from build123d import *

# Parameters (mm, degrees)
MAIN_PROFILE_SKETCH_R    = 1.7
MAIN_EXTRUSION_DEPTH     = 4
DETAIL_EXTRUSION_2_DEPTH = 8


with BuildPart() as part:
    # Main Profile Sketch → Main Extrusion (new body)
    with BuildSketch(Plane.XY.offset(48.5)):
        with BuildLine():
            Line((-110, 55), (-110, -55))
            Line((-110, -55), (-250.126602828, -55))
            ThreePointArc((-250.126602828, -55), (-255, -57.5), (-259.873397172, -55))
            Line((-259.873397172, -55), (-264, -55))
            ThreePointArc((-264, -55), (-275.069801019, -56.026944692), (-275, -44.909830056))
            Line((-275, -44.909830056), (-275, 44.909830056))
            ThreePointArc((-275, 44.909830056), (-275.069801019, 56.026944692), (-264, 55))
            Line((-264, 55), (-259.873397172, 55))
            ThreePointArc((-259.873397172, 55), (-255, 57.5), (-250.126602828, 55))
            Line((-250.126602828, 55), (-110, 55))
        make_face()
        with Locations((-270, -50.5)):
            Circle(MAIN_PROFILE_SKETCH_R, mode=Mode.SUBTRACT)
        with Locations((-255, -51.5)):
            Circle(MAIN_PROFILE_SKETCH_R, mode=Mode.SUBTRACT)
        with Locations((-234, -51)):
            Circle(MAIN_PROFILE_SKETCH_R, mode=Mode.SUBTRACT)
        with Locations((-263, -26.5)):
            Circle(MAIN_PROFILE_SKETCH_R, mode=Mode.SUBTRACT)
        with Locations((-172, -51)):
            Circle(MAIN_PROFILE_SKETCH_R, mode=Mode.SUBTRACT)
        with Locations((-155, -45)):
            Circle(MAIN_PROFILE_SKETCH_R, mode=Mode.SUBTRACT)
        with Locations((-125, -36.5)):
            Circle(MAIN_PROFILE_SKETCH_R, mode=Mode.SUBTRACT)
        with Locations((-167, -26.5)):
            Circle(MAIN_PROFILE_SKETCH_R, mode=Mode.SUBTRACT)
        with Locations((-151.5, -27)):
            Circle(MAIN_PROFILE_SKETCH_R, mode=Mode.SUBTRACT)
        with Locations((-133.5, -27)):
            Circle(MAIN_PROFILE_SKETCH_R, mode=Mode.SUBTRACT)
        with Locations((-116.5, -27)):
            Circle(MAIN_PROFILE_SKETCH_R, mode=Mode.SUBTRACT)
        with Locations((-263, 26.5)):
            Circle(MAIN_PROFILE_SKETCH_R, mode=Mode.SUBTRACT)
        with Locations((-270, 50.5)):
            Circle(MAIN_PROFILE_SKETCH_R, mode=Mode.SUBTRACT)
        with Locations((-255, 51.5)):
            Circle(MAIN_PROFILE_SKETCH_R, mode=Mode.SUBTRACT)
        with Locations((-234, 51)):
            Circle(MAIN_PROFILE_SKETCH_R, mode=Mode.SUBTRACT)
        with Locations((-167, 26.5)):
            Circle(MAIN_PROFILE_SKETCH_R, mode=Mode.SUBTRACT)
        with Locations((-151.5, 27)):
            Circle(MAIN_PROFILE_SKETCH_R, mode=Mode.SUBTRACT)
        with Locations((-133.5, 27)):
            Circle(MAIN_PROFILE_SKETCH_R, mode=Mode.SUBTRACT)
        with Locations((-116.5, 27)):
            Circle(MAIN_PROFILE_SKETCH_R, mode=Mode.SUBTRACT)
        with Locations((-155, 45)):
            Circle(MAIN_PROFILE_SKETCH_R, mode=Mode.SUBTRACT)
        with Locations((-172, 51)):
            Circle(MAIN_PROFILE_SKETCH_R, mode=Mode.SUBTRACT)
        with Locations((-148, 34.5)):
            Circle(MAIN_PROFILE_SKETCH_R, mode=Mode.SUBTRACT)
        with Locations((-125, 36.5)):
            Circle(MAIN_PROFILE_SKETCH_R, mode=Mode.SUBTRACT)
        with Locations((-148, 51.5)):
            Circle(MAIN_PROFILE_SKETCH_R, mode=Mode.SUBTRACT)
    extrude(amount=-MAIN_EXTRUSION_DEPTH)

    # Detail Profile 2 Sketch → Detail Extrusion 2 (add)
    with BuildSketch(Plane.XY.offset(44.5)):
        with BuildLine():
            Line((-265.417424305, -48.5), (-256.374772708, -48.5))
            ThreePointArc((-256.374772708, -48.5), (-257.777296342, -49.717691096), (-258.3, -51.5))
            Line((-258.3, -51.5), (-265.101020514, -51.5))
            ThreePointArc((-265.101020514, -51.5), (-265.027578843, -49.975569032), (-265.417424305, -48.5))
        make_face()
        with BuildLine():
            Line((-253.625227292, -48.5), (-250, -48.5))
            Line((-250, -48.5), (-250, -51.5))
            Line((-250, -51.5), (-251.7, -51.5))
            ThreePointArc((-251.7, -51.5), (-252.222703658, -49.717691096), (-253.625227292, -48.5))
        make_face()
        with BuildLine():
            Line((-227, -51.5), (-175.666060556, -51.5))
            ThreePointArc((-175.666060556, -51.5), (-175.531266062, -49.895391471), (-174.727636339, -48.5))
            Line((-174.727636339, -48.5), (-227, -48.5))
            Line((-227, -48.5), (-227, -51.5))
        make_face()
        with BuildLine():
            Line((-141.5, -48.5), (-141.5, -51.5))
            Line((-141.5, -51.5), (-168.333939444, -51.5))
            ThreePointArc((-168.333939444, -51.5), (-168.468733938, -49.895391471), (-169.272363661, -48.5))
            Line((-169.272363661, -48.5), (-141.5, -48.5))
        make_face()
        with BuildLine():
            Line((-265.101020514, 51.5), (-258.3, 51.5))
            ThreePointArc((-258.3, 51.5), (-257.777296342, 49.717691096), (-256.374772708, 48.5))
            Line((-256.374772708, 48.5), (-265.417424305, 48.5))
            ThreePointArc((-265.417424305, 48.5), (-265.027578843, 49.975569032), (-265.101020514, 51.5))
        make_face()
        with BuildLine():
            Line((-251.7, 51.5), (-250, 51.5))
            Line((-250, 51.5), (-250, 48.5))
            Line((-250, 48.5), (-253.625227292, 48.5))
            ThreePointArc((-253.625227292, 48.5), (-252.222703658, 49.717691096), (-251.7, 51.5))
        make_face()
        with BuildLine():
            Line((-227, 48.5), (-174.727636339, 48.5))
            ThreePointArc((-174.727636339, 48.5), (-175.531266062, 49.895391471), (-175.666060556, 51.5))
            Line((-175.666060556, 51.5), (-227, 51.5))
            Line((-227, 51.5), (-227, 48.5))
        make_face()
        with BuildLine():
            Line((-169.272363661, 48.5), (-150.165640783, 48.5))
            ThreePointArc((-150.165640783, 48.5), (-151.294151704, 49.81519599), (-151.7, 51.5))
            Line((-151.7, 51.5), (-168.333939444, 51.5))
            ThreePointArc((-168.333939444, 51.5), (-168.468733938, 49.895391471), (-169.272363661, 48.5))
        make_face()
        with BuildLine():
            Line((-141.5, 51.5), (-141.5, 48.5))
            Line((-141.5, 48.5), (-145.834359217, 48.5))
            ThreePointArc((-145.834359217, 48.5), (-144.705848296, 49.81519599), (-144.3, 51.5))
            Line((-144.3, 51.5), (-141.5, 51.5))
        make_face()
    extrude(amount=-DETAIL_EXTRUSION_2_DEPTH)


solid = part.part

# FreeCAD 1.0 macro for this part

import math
import FreeCAD as App
import Part
import Sketcher

V = App.Vector

doc = App.newDocument("Part")
params = doc.addObject("Spreadsheet::Sheet", "Params")
for row, (alias, value) in enumerate([
    ("sketch1_radius", "6 mm"),
    ("sketch1_diameter", "3.4 mm"),
    ("sketch1_radius2", "7.5 mm"),
    ("sketch1_height", "110 mm"),
    ("pad1_length", "4 mm"),
    ("sketch2_radius", "5 mm"),
    ("sketch2_radius2", "3.3 mm"),
    ("sketch2_radius3", "3.7 mm"),
    ("sketch2_height", "3 mm"),
    ("sketch2_width", "1.7 mm"),
    ("pad2_length", "8 mm"),
], start=1):
    params.set(f"A{row}", alias)
    params.set(f"B{row}", "=" + value)
    params.setAlias(f"B{row}", alias)

body = doc.addObject("PartDesign::Body", "Body")

sketch1 = body.newObject("Sketcher::SketchObject", "Sketch")
sketch1.AttachmentSupport = (doc.getObject("XY_Plane"), [""])
sketch1.MapMode = "FlatFace"
sketch1.AttachmentOffset = App.Placement(V(0, 0, 48.5), App.Rotation())
sketch1.addGeometry([
    Part.LineSegment(V(-110, -55, 0), V(-110, 55, 0)),
    Part.LineSegment(V(-110, 55, 0), V(-250.1, 55, 0)),
    Part.ArcOfCircle(Part.Circle(V(-255, 51.5, 0), V(0, 0, 1), 6), math.radians(36), math.radians(144)),
    Part.LineSegment(V(-259.9, 55, 0), V(-264, 55, 0)),
    Part.ArcOfCircle(Part.Circle(V(-270, 50.5, 0), V(0, 0, 1), 7.5), math.radians(37), math.radians(228)),
    Part.LineSegment(V(-275, 44.9, 0), V(-275, -44.9, 0)),
    Part.ArcOfCircle(Part.Circle(V(-270, -50.5, 0), V(0, 0, 1), 7.5), math.radians(132), math.radians(323)),
    Part.LineSegment(V(-264, -55, 0), V(-259.9, -55, 0)),
    Part.ArcOfCircle(Part.Circle(V(-255, -51.5, 0), V(0, 0, 1), 6), math.radians(-144), math.radians(-36)),
    Part.LineSegment(V(-250.1, -55, 0), V(-110, -55, 0)),
    Part.Circle(V(-125, -36.5, 0), V(0, 0, 1), 1.7),
    Part.Circle(V(-116.5, -27, 0), V(0, 0, 1), 1.7),
    Part.Circle(V(-133.5, -27, 0), V(0, 0, 1), 1.7),
    Part.Circle(V(-151.5, -27, 0), V(0, 0, 1), 1.7),
    Part.Circle(V(-172, -51, 0), V(0, 0, 1), 1.7),
    Part.Circle(V(-155, -45, 0), V(0, 0, 1), 1.7),
    Part.Circle(V(-167, -26.5, 0), V(0, 0, 1), 1.7),
    Part.Circle(V(-234, -51, 0), V(0, 0, 1), 1.7),
    Part.Circle(V(-255, -51.5, 0), V(0, 0, 1), 1.7),
    Part.Circle(V(-270, -50.5, 0), V(0, 0, 1), 1.7),
    Part.Circle(V(-263, -26.5, 0), V(0, 0, 1), 1.7),
    Part.Circle(V(-167, 26.5, 0), V(0, 0, 1), 1.7),
    Part.Circle(V(-116.5, 27, 0), V(0, 0, 1), 1.7),
    Part.Circle(V(-133.5, 27, 0), V(0, 0, 1), 1.7),
    Part.Circle(V(-125, 36.5, 0), V(0, 0, 1), 1.7),
    Part.Circle(V(-151.5, 27, 0), V(0, 0, 1), 1.7),
    Part.Circle(V(-148, 34.5, 0), V(0, 0, 1), 1.7),
    Part.Circle(V(-148, 51.5, 0), V(0, 0, 1), 1.7),
    Part.Circle(V(-155, 45, 0), V(0, 0, 1), 1.7),
    Part.Circle(V(-172, 51, 0), V(0, 0, 1), 1.7),
    Part.Circle(V(-263, 26.5, 0), V(0, 0, 1), 1.7),
    Part.Circle(V(-234, 51, 0), V(0, 0, 1), 1.7),
    Part.Circle(V(-255, 51.5, 0), V(0, 0, 1), 1.7),
    Part.Circle(V(-270, 50.5, 0), V(0, 0, 1), 1.7),
], False)
sketch1.addConstraint([
    Sketcher.Constraint("Coincident", 0, 2, 1, 1),
    Sketcher.Constraint("Coincident", 1, 2, 2, 1),
    Sketcher.Constraint("Coincident", 2, 2, 3, 1),
    Sketcher.Constraint("Coincident", 3, 2, 4, 1),
    Sketcher.Constraint("Coincident", 4, 2, 5, 1),
    Sketcher.Constraint("Coincident", 5, 2, 6, 1),
    Sketcher.Constraint("Coincident", 6, 2, 7, 1),
    Sketcher.Constraint("Coincident", 7, 2, 8, 1),
    Sketcher.Constraint("Coincident", 8, 2, 9, 1),
    Sketcher.Constraint("Coincident", 9, 2, 0, 1),
    Sketcher.Constraint("Vertical", 0),
    Sketcher.Constraint("Horizontal", 1),
    Sketcher.Constraint("Horizontal", 3),
    Sketcher.Constraint("Vertical", 5),
    Sketcher.Constraint("Horizontal", 7),
    Sketcher.Constraint("Horizontal", 9),
    Sketcher.Constraint("Coincident", 18, 3, 8, 3),
    Sketcher.Constraint("Coincident", 19, 3, 6, 3),
    Sketcher.Constraint("Coincident", 32, 3, 2, 3),
    Sketcher.Constraint("Coincident", 33, 3, 4, 3),
    Sketcher.Constraint("Equal", 4, 6),
    Sketcher.Constraint("Equal", 2, 8),
    Sketcher.Constraint("Equal", 10, 11),
    Sketcher.Constraint("Equal", 11, 12),
    Sketcher.Constraint("Equal", 12, 13),
    Sketcher.Constraint("Equal", 13, 14),
    Sketcher.Constraint("Equal", 14, 15),
    Sketcher.Constraint("Equal", 15, 16),
    Sketcher.Constraint("Equal", 16, 17),
    Sketcher.Constraint("Equal", 17, 18),
    Sketcher.Constraint("Equal", 18, 19),
    Sketcher.Constraint("Equal", 19, 20),
    Sketcher.Constraint("Equal", 20, 21),
    Sketcher.Constraint("Equal", 21, 22),
    Sketcher.Constraint("Equal", 22, 23),
    Sketcher.Constraint("Equal", 23, 24),
    Sketcher.Constraint("Equal", 24, 25),
    Sketcher.Constraint("Equal", 25, 26),
    Sketcher.Constraint("Equal", 26, 27),
    Sketcher.Constraint("Equal", 27, 28),
    Sketcher.Constraint("Equal", 28, 29),
    Sketcher.Constraint("Equal", 29, 30),
    Sketcher.Constraint("Equal", 30, 31),
    Sketcher.Constraint("Equal", 31, 32),
    Sketcher.Constraint("Equal", 32, 33),
    Sketcher.Constraint("Symmetric", 4, 3, 6, 3, -1),
    Sketcher.Constraint("Symmetric", 2, 3, 8, 3, -1),
    Sketcher.Constraint("Symmetric", 16, 3, 21, 3, -1),
    Sketcher.Constraint("Symmetric", 11, 3, 22, 3, -1),
    Sketcher.Constraint("Symmetric", 12, 3, 23, 3, -1),
    Sketcher.Constraint("Symmetric", 10, 3, 24, 3, -1),
    Sketcher.Constraint("Symmetric", 13, 3, 25, 3, -1),
    Sketcher.Constraint("Symmetric", 15, 3, 28, 3, -1),
    Sketcher.Constraint("Symmetric", 14, 3, 29, 3, -1),
    Sketcher.Constraint("Symmetric", 20, 3, 30, 3, -1),
    Sketcher.Constraint("Symmetric", 17, 3, 31, 3, -1),
    Sketcher.Constraint("Horizontal", 11, 3, 12, 3),
    Sketcher.Constraint("Horizontal", 12, 3, 13, 3),
    Sketcher.Constraint("Horizontal", 14, 3, 17, 3),
    Sketcher.Constraint("Horizontal", 16, 3, 20, 3),
    Sketcher.Constraint("Horizontal", 2, 3, 27, 3),
    Sketcher.Constraint("Horizontal", 1, 2, 2, 2),
    Sketcher.Constraint("Horizontal", 7, 2, 8, 2),
    Sketcher.Constraint("Vertical", 26, 3, 27, 3),
    Sketcher.Constraint("Vertical", 3, 2, 6, 2),
    Sketcher.Constraint("Radius", 2, 6.0),
    Sketcher.Constraint("Diameter", 10, 3.4),
    Sketcher.Constraint("Radius", 4, 7.5),
    Sketcher.Constraint("DistanceY", 0, 1, 0, 2, 110.0),
    Sketcher.Constraint("DistanceX", 2, 3, -1, 1, 255.0),
    Sketcher.Constraint("DistanceX", 4, 3, -1, 1, 270.0),
    Sketcher.Constraint("DistanceX", 10, 3, -1, 1, 125.0),
    Sketcher.Constraint("DistanceY", 11, 3, -1, 1, 27.0),
    Sketcher.Constraint("DistanceX", 14, 3, -1, 1, 172.0),
    Sketcher.Constraint("DistanceY", 14, 3, -1, 1, 51.0),
    Sketcher.Constraint("DistanceX", 15, 3, -1, 1, 155.0),
    Sketcher.Constraint("DistanceY", 15, 3, -1, 1, 45.0),
    Sketcher.Constraint("DistanceX", 16, 3, -1, 1, 167.0),
    Sketcher.Constraint("DistanceX", 17, 3, -1, 1, 234.0),
    Sketcher.Constraint("DistanceX", 20, 3, -1, 1, 263.0),
    Sketcher.Constraint("DistanceX", 26, 3, -1, 1, 148.0),
    Sketcher.Constraint("DistanceX", 0, 2, -1, 1, 110.0),
    Sketcher.Constraint("DistanceX", 3, 2, -1, 1, 264.0),
    Sketcher.Constraint("DistanceX", 4, 2, -1, 1, 275.0),
    Sketcher.Constraint("DistanceY", 4, 3, 2, 3, 1.0),
    Sketcher.Constraint("DistanceY", 8, 3, 10, 3, 15.0),
    Sketcher.Constraint("DistanceX", 12, 3, 11, 3, 17.0),
    Sketcher.Constraint("DistanceX", 13, 3, 12, 3, 18.0),
    Sketcher.Constraint("DistanceY", 10, 3, 16, 3, 10.0),
    Sketcher.Constraint("DistanceY", 21, 3, 26, 3, 8.0),
    Sketcher.Constraint("DistanceX", 11, 3, -1, 1, 116.5),
])
sketch1.setExpression("Constraints[65]", "Params.sketch1_radius")
sketch1.setExpression("Constraints[66]", "Params.sketch1_diameter")
sketch1.setExpression("Constraints[67]", "Params.sketch1_radius2")
sketch1.setExpression("Constraints[68]", "Params.sketch1_height")
pad1 = body.newObject("PartDesign::Pad", "Pad")
pad1.Profile = sketch1
pad1.setExpression("Length", "Params.pad1_length")
pad1.Reversed = True

sketch2 = body.newObject("Sketcher::SketchObject", "Sketch001")
sketch2.AttachmentSupport = (doc.getObject("XY_Plane"), [""])
sketch2.MapMode = "FlatFace"
sketch2.AttachmentOffset = App.Placement(V(0, 0, 44.5), App.Rotation())
sketch2.addGeometry([
    Part.LineSegment(V(-256.4, -48.5, 0), V(-265.4, -48.5, 0)),
    Part.ArcOfCircle(Part.Circle(V(-270, -50.5, 0), V(0, 0, 1), 5), math.radians(-12), math.radians(24)),
    Part.LineSegment(V(-265.1, -51.5, 0), V(-258.3, -51.5, 0)),
    Part.ArcOfCircle(Part.Circle(V(-255, -51.5, 0), V(0, 0, 1), 3.3), math.radians(115), math.radians(180)),
    Part.LineSegment(V(-250, -48.5, 0), V(-253.6, -48.5, 0)),
    Part.ArcOfCircle(Part.Circle(V(-255, -51.5, 0), V(0, 0, 1), 3.3), math.radians(0), math.radians(65)),
    Part.LineSegment(V(-251.7, -51.5, 0), V(-250, -51.5, 0)),
    Part.LineSegment(V(-250, -51.5, 0), V(-250, -48.5, 0)),
    Part.LineSegment(V(-227, -51.5, 0), V(-175.7, -51.5, 0)),
    Part.ArcOfCircle(Part.Circle(V(-172, -51, 0), V(0, 0, 1), 3.7), math.radians(137), math.radians(188)),
    Part.LineSegment(V(-174.7, -48.5, 0), V(-227, -48.5, 0)),
    Part.LineSegment(V(-227, -48.5, 0), V(-227, -51.5, 0)),
    Part.LineSegment(V(-141.5, -51.5, 0), V(-141.5, -48.5, 0)),
    Part.LineSegment(V(-141.5, -48.5, 0), V(-169.3, -48.5, 0)),
    Part.ArcOfCircle(Part.Circle(V(-172, -51, 0), V(0, 0, 1), 3.7), math.radians(-8), math.radians(43)),
    Part.LineSegment(V(-168.3, -51.5, 0), V(-141.5, -51.5, 0)),
    Part.LineSegment(V(-258.3, 51.5, 0), V(-265.1, 51.5, 0)),
    Part.ArcOfCircle(Part.Circle(V(-270, 50.5, 0), V(0, 0, 1), 5), math.radians(-24), math.radians(12)),
    Part.LineSegment(V(-265.4, 48.5, 0), V(-256.4, 48.5, 0)),
    Part.ArcOfCircle(Part.Circle(V(-255, 51.5, 0), V(0, 0, 1), 3.3), math.radians(180), math.radians(245)),
    Part.LineSegment(V(-250, 51.5, 0), V(-251.7, 51.5, 0)),
    Part.ArcOfCircle(Part.Circle(V(-255, 51.5, 0), V(0, 0, 1), 3.3), math.radians(-65), math.radians(0)),
    Part.LineSegment(V(-253.6, 48.5, 0), V(-250, 48.5, 0)),
    Part.LineSegment(V(-250, 48.5, 0), V(-250, 51.5, 0)),
    Part.LineSegment(V(-227, 48.5, 0), V(-174.7, 48.5, 0)),
    Part.ArcOfCircle(Part.Circle(V(-172, 51, 0), V(0, 0, 1), 3.7), math.radians(172), math.radians(223)),
    Part.LineSegment(V(-175.7, 51.5, 0), V(-227, 51.5, 0)),
    Part.LineSegment(V(-227, 51.5, 0), V(-227, 48.5, 0)),
    Part.LineSegment(V(-169.3, 48.5, 0), V(-150.2, 48.5, 0)),
    Part.ArcOfCircle(Part.Circle(V(-148, 51.5, 0), V(0, 0, 1), 3.7), math.radians(180), math.radians(234)),
    Part.LineSegment(V(-151.7, 51.5, 0), V(-168.3, 51.5, 0)),
    Part.ArcOfCircle(Part.Circle(V(-172, 51, 0), V(0, 0, 1), 3.7), math.radians(-43), math.radians(8)),
    Part.LineSegment(V(-141.5, 48.5, 0), V(-141.5, 51.5, 0)),
    Part.LineSegment(V(-141.5, 51.5, 0), V(-144.3, 51.5, 0)),
    Part.ArcOfCircle(Part.Circle(V(-148, 51.5, 0), V(0, 0, 1), 3.7), math.radians(-54), math.radians(0)),
    Part.LineSegment(V(-145.8, 48.5, 0), V(-141.5, 48.5, 0)),
], False)
sketch2.addConstraint([
    Sketcher.Constraint("Coincident", 0, 2, 1, 2),
    Sketcher.Constraint("Coincident", 1, 1, 2, 1),
    Sketcher.Constraint("Coincident", 2, 2, 3, 2),
    Sketcher.Constraint("Coincident", 3, 1, 0, 1),
    Sketcher.Constraint("Coincident", 4, 2, 5, 2),
    Sketcher.Constraint("Coincident", 5, 1, 6, 1),
    Sketcher.Constraint("Coincident", 6, 2, 7, 1),
    Sketcher.Constraint("Coincident", 7, 2, 4, 1),
    Sketcher.Constraint("Coincident", 8, 2, 9, 2),
    Sketcher.Constraint("Coincident", 9, 1, 10, 1),
    Sketcher.Constraint("Coincident", 10, 2, 11, 1),
    Sketcher.Constraint("Coincident", 11, 2, 8, 1),
    Sketcher.Constraint("Coincident", 12, 2, 13, 1),
    Sketcher.Constraint("Coincident", 13, 2, 14, 2),
    Sketcher.Constraint("Coincident", 14, 1, 15, 1),
    Sketcher.Constraint("Coincident", 15, 2, 12, 1),
    Sketcher.Constraint("Coincident", 16, 2, 17, 2),
    Sketcher.Constraint("Coincident", 17, 1, 18, 1),
    Sketcher.Constraint("Coincident", 18, 2, 19, 2),
    Sketcher.Constraint("Coincident", 19, 1, 16, 1),
    Sketcher.Constraint("Coincident", 20, 2, 21, 2),
    Sketcher.Constraint("Coincident", 21, 1, 22, 1),
    Sketcher.Constraint("Coincident", 22, 2, 23, 1),
    Sketcher.Constraint("Coincident", 23, 2, 20, 1),
    Sketcher.Constraint("Coincident", 24, 2, 25, 2),
    Sketcher.Constraint("Coincident", 25, 1, 26, 1),
    Sketcher.Constraint("Coincident", 26, 2, 27, 1),
    Sketcher.Constraint("Coincident", 27, 2, 24, 1),
    Sketcher.Constraint("Coincident", 28, 2, 29, 2),
    Sketcher.Constraint("Coincident", 29, 1, 30, 1),
    Sketcher.Constraint("Coincident", 30, 2, 31, 2),
    Sketcher.Constraint("Coincident", 31, 1, 28, 1),
    Sketcher.Constraint("Coincident", 32, 2, 33, 1),
    Sketcher.Constraint("Coincident", 33, 2, 34, 2),
    Sketcher.Constraint("Coincident", 34, 1, 35, 1),
    Sketcher.Constraint("Coincident", 35, 2, 32, 1),
    Sketcher.Constraint("Horizontal", 0),
    Sketcher.Constraint("Horizontal", 2),
    Sketcher.Constraint("Horizontal", 4),
    Sketcher.Constraint("Horizontal", 6),
    Sketcher.Constraint("Vertical", 7),
    Sketcher.Constraint("Horizontal", 8),
    Sketcher.Constraint("Horizontal", 10),
    Sketcher.Constraint("Vertical", 11),
    Sketcher.Constraint("Vertical", 12),
    Sketcher.Constraint("Horizontal", 13),
    Sketcher.Constraint("Horizontal", 15),
    Sketcher.Constraint("Horizontal", 16),
    Sketcher.Constraint("Horizontal", 18),
    Sketcher.Constraint("Horizontal", 20),
    Sketcher.Constraint("Horizontal", 22),
    Sketcher.Constraint("Vertical", 23),
    Sketcher.Constraint("Horizontal", 24),
    Sketcher.Constraint("Horizontal", 26),
    Sketcher.Constraint("Vertical", 27),
    Sketcher.Constraint("Horizontal", 28),
    Sketcher.Constraint("Horizontal", 30),
    Sketcher.Constraint("Vertical", 32),
    Sketcher.Constraint("Horizontal", 33),
    Sketcher.Constraint("Horizontal", 35),
    Sketcher.Constraint("Coincident", 5, 3, 3, 3),
    Sketcher.Constraint("Coincident", 14, 3, 9, 3),
    Sketcher.Constraint("Coincident", 21, 3, 19, 3),
    Sketcher.Constraint("Coincident", 31, 3, 25, 3),
    Sketcher.Constraint("Coincident", 34, 3, 29, 3),
    Sketcher.Constraint("Equal", 3, 5),
    Sketcher.Constraint("Equal", 9, 14),
    Sketcher.Constraint("Equal", 1, 17),
    Sketcher.Constraint("Equal", 5, 19),
    Sketcher.Constraint("Equal", 19, 21),
    Sketcher.Constraint("Equal", 14, 25),
    Sketcher.Constraint("Equal", 25, 29),
    Sketcher.Constraint("Equal", 29, 31),
    Sketcher.Constraint("Equal", 31, 34),
    Sketcher.Constraint("Symmetric", 1, 3, 17, 3, -1),
    Sketcher.Constraint("Symmetric", 3, 3, 19, 3, -1),
    Sketcher.Constraint("Symmetric", 9, 3, 25, 3, -1),
    Sketcher.Constraint("Symmetric", 7, 2, 22, 2, -1),
    Sketcher.Constraint("Symmetric", 11, 2, 26, 2, -1),
    Sketcher.Constraint("Symmetric", 15, 2, 32, 2, -1),
    Sketcher.Constraint("Horizontal", 21, 3, 29, 3),
    Sketcher.Constraint("Horizontal", 5, 3, 1, 1),
    Sketcher.Constraint("Horizontal", 3, 1, 4, 2),
    Sketcher.Constraint("Horizontal", 2, 2, 5, 1),
    Sketcher.Constraint("Horizontal", 6, 2, 8, 2),
    Sketcher.Constraint("Horizontal", 7, 2, 9, 1),
    Sketcher.Constraint("Horizontal", 10, 2, 12, 2),
    Sketcher.Constraint("Horizontal", 11, 2, 14, 1),
    Sketcher.Constraint("Horizontal", 34, 3, 16, 2),
    Sketcher.Constraint("Horizontal", 19, 1, 20, 2),
    Sketcher.Constraint("Horizontal", 18, 2, 21, 1),
    Sketcher.Constraint("Horizontal", 22, 2, 24, 2),
    Sketcher.Constraint("Horizontal", 27, 2, 28, 2),
    Sketcher.Constraint("Horizontal", 26, 2, 29, 1),
    Sketcher.Constraint("Horizontal", 31, 1, 34, 1),
    Sketcher.Constraint("Radius", 1, 5.0),
    Sketcher.Constraint("Radius", 3, 3.3),
    Sketcher.Constraint("Radius", 9, 3.7),
    Sketcher.Constraint("DistanceY", 7, 1, 7, 2, 3.0),
    Sketcher.Constraint("DistanceX", 6, 1, 6, 2, 1.7),
    Sketcher.Constraint("DistanceX", 33, 2, 33, 1, 2.8),
    Sketcher.Constraint("DistanceX", 1, 3, -1, 1, 270.0),
    Sketcher.Constraint("DistanceX", 3, 3, -1, 1, 255.0),
    Sketcher.Constraint("DistanceX", 9, 3, -1, 1, 172.0),
    Sketcher.Constraint("DistanceY", 9, 3, -1, 1, 51.0),
    Sketcher.Constraint("DistanceX", 29, 3, -1, 1, 148.0),
    Sketcher.Constraint("DistanceX", 10, 2, -1, 1, 227.0),
    Sketcher.Constraint("DistanceY", 3, 3, 1, 3, 1.0),
    Sketcher.Constraint("DistanceY", 1, 3, 17, 3, 101.0),
])
sketch2.setExpression("Constraints[95]", "Params.sketch2_radius")
sketch2.setExpression("Constraints[96]", "Params.sketch2_radius2")
sketch2.setExpression("Constraints[97]", "Params.sketch2_radius3")
sketch2.setExpression("Constraints[98]", "Params.sketch2_height")
sketch2.setExpression("Constraints[99]", "Params.sketch2_width")
pad2 = body.newObject("PartDesign::Pad", "Pad001")
pad2.Profile = sketch2
pad2.setExpression("Length", "Params.pad2_length")
pad2.Reversed = True

doc.recompute()
